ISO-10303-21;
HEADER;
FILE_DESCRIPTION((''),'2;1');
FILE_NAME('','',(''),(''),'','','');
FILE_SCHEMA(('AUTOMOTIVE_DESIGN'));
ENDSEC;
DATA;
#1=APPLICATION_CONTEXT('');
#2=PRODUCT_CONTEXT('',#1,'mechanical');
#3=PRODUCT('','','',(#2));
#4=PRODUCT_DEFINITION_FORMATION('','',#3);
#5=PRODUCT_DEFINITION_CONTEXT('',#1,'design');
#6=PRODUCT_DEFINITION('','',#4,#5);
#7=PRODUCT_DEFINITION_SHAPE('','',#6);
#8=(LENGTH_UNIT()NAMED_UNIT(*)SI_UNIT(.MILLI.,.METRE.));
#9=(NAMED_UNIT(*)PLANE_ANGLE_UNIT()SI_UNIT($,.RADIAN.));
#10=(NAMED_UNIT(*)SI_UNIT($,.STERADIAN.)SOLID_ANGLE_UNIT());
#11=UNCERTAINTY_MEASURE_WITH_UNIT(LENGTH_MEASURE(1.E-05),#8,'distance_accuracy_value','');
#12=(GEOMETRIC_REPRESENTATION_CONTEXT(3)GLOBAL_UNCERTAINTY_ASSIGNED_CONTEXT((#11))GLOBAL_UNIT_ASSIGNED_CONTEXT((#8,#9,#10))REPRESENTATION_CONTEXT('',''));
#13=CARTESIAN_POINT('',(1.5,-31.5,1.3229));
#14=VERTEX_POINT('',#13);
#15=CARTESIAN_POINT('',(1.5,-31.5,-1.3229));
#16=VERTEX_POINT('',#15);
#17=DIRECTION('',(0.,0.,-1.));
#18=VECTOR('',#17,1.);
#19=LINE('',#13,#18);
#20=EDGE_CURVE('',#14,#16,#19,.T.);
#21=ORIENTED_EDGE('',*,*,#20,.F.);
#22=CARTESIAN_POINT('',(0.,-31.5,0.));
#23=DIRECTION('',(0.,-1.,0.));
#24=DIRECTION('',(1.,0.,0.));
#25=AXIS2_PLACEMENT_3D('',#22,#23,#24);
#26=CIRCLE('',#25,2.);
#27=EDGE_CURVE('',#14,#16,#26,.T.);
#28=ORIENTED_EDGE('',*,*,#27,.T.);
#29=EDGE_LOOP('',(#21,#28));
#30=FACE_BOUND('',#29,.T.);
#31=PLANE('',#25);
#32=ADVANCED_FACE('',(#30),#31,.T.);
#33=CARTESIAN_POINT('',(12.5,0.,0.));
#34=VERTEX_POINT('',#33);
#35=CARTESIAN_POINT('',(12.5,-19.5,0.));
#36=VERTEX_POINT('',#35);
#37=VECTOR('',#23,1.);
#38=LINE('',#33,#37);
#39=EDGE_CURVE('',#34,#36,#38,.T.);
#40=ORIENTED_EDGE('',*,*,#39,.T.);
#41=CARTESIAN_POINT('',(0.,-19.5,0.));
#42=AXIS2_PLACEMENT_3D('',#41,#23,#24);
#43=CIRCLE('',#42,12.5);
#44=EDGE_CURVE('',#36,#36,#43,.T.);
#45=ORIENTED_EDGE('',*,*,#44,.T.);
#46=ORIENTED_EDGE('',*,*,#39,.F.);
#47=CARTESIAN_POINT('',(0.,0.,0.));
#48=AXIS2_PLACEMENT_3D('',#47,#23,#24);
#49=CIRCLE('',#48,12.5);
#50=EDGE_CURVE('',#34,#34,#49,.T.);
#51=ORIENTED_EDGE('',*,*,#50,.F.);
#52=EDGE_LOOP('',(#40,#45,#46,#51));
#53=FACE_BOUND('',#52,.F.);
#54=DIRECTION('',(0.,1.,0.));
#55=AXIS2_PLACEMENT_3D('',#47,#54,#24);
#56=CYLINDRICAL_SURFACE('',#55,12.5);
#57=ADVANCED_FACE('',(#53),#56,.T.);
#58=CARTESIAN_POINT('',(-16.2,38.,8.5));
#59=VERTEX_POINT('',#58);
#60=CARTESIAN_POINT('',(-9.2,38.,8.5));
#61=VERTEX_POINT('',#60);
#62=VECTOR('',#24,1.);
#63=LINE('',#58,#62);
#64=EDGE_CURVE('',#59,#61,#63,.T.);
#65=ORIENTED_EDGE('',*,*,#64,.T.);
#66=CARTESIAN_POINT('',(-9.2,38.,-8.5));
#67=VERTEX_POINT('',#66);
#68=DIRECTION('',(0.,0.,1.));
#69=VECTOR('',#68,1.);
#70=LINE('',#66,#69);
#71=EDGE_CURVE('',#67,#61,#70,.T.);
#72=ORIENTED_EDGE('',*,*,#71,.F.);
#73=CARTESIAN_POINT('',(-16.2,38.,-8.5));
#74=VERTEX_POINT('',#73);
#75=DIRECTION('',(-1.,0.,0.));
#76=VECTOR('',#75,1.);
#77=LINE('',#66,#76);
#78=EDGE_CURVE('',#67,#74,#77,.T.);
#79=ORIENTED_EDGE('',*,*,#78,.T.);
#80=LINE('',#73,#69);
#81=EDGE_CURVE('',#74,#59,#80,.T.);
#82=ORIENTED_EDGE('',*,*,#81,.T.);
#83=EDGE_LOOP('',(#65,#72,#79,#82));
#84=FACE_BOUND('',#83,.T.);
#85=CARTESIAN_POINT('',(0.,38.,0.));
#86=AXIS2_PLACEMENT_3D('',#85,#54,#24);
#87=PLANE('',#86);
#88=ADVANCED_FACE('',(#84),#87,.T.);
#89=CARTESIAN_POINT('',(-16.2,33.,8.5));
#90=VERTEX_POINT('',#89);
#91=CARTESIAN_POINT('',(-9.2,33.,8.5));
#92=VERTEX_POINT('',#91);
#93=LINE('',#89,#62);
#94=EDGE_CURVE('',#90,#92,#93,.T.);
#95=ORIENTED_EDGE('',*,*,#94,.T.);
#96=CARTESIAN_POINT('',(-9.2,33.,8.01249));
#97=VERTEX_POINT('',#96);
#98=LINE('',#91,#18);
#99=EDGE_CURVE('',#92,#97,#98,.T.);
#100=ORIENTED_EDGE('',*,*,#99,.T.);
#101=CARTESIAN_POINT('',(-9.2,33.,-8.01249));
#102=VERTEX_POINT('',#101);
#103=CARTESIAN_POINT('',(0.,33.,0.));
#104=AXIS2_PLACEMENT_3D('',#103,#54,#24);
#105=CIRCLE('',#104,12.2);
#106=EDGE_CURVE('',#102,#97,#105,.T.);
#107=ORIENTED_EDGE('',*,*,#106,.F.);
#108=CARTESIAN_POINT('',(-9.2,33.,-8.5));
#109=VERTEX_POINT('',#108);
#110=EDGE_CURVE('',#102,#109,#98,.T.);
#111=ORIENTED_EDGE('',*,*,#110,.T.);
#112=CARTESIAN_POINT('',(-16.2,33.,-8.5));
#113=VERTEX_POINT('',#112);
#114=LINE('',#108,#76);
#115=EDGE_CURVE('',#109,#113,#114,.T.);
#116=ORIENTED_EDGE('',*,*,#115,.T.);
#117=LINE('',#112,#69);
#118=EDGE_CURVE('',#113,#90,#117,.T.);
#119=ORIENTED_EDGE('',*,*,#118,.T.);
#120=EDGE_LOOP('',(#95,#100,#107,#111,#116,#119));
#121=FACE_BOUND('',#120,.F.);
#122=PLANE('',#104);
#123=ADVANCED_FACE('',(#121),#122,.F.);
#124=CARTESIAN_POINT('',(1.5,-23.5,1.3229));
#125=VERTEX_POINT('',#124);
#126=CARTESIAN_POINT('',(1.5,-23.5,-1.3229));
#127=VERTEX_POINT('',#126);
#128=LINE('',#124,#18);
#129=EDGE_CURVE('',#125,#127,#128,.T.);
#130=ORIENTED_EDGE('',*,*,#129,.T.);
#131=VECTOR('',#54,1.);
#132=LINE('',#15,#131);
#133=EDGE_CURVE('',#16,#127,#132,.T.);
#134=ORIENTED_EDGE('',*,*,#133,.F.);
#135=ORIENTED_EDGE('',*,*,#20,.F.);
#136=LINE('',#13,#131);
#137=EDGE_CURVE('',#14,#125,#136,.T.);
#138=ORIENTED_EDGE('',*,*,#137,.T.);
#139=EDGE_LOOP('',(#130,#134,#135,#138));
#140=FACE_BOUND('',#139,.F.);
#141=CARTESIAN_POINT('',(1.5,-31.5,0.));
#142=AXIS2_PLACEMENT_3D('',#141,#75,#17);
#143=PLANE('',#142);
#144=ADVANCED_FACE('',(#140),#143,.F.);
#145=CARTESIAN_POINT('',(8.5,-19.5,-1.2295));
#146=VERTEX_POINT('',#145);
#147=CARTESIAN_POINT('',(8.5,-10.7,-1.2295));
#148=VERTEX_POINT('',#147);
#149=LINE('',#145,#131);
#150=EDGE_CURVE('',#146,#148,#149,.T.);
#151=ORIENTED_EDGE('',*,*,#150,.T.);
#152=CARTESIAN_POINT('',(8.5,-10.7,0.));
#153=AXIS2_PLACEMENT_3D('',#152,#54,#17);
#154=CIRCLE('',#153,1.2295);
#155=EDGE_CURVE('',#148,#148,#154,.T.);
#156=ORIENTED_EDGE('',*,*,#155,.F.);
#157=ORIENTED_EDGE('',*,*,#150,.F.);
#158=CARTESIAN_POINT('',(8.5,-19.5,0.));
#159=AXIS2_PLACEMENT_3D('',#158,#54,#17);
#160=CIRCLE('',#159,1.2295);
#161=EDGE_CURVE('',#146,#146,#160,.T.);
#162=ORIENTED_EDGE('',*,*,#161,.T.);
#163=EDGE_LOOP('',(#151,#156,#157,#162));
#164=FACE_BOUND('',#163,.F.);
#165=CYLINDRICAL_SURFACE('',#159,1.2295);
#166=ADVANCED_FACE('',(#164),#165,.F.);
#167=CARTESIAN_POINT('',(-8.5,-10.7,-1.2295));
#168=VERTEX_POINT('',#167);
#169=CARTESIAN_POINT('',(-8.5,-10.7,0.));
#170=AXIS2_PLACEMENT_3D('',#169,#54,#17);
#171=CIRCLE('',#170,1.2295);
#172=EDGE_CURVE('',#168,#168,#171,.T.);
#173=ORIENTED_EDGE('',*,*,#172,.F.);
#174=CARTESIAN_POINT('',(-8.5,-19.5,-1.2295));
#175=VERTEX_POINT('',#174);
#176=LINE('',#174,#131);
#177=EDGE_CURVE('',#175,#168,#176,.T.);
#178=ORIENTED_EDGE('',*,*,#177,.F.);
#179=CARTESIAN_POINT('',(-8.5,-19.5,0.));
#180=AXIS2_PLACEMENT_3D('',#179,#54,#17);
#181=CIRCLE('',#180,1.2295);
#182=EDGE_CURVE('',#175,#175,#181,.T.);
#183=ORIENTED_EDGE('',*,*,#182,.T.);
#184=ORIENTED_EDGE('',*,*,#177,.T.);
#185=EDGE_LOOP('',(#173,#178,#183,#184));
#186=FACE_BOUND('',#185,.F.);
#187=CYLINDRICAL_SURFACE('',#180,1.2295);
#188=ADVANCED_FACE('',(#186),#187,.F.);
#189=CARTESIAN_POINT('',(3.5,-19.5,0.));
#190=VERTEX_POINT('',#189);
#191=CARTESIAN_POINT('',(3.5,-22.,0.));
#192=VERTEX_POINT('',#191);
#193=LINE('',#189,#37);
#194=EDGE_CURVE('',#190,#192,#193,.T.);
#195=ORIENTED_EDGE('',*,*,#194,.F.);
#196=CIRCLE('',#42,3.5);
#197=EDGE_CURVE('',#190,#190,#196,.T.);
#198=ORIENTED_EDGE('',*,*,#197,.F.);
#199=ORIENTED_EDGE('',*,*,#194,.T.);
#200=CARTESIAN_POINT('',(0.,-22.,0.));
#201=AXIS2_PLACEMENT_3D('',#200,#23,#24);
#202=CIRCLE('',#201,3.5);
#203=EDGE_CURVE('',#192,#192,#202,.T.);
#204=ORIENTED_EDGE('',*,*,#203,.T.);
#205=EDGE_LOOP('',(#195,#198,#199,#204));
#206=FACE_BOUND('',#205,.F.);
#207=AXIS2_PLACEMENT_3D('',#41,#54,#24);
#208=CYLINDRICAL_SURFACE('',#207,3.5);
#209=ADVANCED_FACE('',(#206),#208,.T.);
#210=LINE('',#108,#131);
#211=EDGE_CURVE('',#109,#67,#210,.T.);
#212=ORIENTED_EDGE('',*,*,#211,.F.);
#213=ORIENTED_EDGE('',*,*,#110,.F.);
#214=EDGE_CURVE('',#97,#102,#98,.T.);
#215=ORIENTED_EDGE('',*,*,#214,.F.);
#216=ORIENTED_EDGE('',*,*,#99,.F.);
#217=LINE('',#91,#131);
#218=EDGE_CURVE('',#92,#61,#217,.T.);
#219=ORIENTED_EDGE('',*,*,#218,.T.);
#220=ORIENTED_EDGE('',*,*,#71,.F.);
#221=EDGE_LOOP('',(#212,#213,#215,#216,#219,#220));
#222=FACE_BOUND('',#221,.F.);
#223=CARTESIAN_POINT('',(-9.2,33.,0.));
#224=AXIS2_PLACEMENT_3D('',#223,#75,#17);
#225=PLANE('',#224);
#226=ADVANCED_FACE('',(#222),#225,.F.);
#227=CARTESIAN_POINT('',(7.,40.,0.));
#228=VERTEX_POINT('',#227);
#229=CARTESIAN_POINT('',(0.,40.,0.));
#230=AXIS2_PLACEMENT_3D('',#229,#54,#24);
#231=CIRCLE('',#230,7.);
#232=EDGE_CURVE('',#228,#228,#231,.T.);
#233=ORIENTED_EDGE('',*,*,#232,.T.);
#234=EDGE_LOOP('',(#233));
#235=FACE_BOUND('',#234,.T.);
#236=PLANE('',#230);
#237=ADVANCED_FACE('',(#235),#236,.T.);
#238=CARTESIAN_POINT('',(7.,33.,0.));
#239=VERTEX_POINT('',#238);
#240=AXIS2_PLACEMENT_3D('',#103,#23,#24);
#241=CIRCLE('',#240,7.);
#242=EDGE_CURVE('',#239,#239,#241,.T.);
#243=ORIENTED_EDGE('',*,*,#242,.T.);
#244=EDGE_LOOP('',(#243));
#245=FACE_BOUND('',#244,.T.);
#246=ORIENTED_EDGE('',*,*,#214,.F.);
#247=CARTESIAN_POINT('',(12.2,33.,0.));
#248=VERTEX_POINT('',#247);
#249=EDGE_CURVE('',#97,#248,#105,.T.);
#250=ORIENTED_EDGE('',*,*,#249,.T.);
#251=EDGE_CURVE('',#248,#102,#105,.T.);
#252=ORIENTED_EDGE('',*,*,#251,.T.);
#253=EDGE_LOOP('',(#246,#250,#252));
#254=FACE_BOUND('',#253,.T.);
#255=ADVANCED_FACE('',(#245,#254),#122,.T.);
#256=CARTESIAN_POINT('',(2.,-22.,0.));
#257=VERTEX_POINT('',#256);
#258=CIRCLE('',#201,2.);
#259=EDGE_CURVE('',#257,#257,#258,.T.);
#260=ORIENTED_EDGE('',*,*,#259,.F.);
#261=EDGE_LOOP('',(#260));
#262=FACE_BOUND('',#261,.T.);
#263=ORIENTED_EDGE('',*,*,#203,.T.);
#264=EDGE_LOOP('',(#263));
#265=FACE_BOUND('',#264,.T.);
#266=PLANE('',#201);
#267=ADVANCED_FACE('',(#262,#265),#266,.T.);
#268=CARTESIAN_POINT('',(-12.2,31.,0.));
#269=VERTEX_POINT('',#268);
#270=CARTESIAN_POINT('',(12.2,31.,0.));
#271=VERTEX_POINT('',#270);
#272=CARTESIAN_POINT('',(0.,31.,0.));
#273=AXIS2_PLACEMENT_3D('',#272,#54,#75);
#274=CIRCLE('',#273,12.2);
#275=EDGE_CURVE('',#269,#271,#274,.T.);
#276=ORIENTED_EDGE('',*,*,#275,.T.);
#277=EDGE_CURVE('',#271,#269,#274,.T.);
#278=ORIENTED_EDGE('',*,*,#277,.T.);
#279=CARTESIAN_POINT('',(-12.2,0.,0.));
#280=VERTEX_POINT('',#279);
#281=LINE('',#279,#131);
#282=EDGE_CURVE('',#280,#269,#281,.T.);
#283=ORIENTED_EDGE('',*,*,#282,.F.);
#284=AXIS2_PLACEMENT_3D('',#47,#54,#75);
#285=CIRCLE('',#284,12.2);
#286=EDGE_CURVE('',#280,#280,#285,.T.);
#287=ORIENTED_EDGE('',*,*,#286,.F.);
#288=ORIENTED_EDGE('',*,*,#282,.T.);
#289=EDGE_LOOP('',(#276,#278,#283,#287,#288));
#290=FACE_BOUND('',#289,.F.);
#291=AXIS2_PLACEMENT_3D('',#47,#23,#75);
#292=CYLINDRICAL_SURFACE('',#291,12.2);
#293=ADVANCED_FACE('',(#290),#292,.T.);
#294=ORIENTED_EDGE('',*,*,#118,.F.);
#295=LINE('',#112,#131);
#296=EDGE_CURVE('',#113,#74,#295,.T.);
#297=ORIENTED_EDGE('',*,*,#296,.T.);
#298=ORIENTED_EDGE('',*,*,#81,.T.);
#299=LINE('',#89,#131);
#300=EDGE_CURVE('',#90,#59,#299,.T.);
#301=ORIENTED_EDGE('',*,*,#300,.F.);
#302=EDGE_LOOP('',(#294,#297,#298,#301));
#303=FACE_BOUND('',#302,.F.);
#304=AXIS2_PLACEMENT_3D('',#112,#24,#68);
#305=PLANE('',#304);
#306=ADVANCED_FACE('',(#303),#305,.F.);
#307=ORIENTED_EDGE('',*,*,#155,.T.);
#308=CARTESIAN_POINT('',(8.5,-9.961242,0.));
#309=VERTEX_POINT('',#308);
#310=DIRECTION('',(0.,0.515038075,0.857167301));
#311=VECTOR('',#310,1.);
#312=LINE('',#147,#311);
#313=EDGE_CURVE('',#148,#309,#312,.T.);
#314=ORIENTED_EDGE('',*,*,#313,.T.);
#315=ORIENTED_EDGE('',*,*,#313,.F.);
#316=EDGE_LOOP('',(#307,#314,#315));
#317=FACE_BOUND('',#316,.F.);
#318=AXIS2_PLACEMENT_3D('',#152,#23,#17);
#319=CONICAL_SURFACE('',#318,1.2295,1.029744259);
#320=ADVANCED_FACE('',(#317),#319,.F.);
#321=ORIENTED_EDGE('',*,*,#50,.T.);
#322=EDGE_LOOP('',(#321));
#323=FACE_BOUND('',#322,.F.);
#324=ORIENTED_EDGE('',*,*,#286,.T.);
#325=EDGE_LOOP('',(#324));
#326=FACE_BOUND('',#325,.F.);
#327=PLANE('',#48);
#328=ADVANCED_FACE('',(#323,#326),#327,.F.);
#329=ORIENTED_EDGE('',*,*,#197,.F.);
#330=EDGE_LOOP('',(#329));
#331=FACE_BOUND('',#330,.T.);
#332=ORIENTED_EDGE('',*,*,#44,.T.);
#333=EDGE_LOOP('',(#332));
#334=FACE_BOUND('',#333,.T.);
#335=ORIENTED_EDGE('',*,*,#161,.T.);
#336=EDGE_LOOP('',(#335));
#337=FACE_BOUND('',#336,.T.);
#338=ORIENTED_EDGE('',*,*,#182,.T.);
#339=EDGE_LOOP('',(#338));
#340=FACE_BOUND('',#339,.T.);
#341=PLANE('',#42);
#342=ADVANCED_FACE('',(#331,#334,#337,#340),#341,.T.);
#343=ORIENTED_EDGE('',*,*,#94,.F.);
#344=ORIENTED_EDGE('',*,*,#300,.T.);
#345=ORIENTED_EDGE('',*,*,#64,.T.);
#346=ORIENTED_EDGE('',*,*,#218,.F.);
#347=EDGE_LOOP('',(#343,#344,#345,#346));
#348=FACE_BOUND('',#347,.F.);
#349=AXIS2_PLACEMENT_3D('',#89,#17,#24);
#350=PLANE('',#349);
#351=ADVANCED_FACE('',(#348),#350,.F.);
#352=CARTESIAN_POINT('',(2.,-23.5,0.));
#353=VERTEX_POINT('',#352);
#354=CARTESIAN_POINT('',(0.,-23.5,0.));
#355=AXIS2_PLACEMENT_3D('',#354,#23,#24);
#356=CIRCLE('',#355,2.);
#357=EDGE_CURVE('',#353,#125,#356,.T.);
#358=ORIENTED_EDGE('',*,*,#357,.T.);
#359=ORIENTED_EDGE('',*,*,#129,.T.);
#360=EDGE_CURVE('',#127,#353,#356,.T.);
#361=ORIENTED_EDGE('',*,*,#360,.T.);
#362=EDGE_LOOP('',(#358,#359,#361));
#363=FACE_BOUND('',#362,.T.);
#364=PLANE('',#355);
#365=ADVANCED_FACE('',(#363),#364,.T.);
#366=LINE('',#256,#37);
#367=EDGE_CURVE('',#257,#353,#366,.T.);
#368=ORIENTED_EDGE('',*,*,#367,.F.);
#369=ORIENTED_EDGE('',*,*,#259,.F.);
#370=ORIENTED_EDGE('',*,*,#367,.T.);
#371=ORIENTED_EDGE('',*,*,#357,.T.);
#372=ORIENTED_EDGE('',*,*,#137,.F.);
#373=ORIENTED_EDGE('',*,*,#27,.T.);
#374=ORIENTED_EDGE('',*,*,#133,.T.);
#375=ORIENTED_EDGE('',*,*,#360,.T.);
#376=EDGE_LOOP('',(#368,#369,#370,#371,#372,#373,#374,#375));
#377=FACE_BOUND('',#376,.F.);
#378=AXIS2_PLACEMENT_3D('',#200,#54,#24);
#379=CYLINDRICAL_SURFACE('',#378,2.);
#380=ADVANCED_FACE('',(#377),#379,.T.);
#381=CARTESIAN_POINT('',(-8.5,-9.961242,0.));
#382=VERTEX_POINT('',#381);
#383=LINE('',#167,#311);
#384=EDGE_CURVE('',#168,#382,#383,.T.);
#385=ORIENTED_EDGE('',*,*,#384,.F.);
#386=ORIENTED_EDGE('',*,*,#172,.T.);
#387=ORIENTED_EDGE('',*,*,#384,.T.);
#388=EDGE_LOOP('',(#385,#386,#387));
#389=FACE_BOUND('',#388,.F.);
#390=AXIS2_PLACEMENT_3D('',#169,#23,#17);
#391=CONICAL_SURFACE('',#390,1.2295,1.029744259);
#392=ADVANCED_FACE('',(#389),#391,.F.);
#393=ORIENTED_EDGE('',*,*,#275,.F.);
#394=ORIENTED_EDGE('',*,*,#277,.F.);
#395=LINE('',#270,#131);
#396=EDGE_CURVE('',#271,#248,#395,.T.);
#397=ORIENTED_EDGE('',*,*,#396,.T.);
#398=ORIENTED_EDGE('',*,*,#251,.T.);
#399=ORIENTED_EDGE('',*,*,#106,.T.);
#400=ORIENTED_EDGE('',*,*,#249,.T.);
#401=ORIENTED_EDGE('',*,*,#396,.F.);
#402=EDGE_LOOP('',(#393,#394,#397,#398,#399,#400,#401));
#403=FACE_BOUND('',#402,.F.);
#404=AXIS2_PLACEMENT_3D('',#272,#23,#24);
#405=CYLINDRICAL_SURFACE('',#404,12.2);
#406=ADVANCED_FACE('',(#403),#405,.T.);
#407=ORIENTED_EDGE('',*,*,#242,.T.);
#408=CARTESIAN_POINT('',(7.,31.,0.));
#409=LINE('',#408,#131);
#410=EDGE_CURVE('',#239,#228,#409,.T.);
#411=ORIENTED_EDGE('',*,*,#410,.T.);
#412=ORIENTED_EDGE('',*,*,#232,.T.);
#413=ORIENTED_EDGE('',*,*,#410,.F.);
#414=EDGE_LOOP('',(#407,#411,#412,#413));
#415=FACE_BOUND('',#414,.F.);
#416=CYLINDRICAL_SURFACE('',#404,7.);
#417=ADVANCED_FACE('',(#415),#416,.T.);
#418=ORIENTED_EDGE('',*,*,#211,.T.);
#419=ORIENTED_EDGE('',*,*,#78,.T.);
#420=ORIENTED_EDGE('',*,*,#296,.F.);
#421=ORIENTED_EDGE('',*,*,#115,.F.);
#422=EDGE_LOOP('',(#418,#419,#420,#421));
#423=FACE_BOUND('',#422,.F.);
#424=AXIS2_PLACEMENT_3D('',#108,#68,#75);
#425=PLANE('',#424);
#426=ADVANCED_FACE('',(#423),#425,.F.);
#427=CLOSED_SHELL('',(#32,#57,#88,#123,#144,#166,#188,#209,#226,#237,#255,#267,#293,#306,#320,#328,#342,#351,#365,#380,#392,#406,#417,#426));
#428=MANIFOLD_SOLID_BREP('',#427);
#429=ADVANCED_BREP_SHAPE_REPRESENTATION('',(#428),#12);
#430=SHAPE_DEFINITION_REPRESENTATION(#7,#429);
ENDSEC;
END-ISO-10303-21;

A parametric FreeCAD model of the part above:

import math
import FreeCAD as App
import Part
import Sketcher

V = App.Vector

doc = App.newDocument("Part")
body = doc.addObject("PartDesign::Body", "Body")

# Sketch on XZ plane
sketch1 = body.newObject("Sketcher::SketchObject", "Sketch")
sketch1.AttachmentSupport = (doc.getObject("XZ_Plane"), [""])
sketch1.MapMode = "FlatFace"
sketch1.addGeometry(Part.Circle(V(0, 0, 0), V(0, 0, 1), 12), False)
sketch1.addConstraint([
    Sketcher.Constraint("Coincident", 0, 3, -1, 1),
    Sketcher.Constraint("Diameter", 0, 24.4),
])
pad1 = body.newObject("PartDesign::Pad", "Pad")
pad1.Profile = sketch1
pad1.Length = 31
pad1.Reversed = True

# Sketch on XZ plane
sketch2 = body.newObject("Sketcher::SketchObject", "Sketch001")
sketch2.AttachmentSupport = (doc.getObject("XZ_Plane"), [""])
sketch2.MapMode = "FlatFace"
sketch2.addGeometry(Part.Circle(V(0, 0, 0), V(0, 0, 1), 12), False)
sketch2.addConstraint([
    Sketcher.Constraint("Coincident", 0, 3, -1, 1),
    Sketcher.Constraint("Diameter", 0, 25.0),
])
pad2 = body.newObject("PartDesign::Pad", "Pad001")
pad2.Profile = sketch2
pad2.Length = 19.5

# Sketch on XZ plane
sketch3 = body.newObject("Sketcher::SketchObject", "Sketch002")
sketch3.AttachmentSupport = (doc.getObject("XZ_Plane"), [""])
sketch3.MapMode = "FlatFace"
sketch3.AttachmentOffset = App.Placement(V(0, 0, 19.5), App.Rotation())
sketch3.addGeometry(Part.Circle(V(0, 0, 0), V(0, 0, 1), 3.5), False)
sketch3.addConstraint([
    Sketcher.Constraint("Coincident", 0, 3, -1, 1),
    Sketcher.Constraint("Diameter", 0, 7.0),
])
pad3 = body.newObject("PartDesign::Pad", "Pad002")
pad3.Profile = sketch3
pad3.Length = 2.5

# Sketch on XZ plane
sketch4 = body.newObject("Sketcher::SketchObject", "Sketch003")
sketch4.AttachmentSupport = (doc.getObject("XZ_Plane"), [""])
sketch4.MapMode = "FlatFace"
sketch4.AttachmentOffset = App.Placement(V(0, 0, 22), App.Rotation())
sketch4.addGeometry(Part.Circle(V(0, 0, 0), V(0, 0, 1), 2), False)
sketch4.addConstraint([
    Sketcher.Constraint("Coincident", 0, 3, -1, 1),
    Sketcher.Constraint("Diameter", 0, 4.0),
])
pad4 = body.newObject("PartDesign::Pad", "Pad003")
pad4.Profile = sketch4
pad4.Length = 9.5

# Sketch on XZ plane
sketch5 = body.newObject("Sketcher::SketchObject", "Sketch004")
sketch5.AttachmentSupport = (doc.getObject("XZ_Plane"), [""])
sketch5.MapMode = "FlatFace"
sketch5.AttachmentOffset = App.Placement(V(0, 0, 31.5), App.Rotation())
sketch5.addGeometry([
    Part.ArcOfCircle(Part.Circle(V(0, 0, 0), V(0, 0, 1), 2), math.radians(-41), math.radians(41)),
    Part.LineSegment(V(1.5, -1.3, 0), V(1.5, 1.3, 0)),
], False)
sketch5.addConstraint([
    Sketcher.Constraint("Coincident", 0, 1, 1, 1),
    Sketcher.Constraint("Coincident", 1, 2, 0, 2),
    Sketcher.Constraint("Vertical", 1),
    Sketcher.Constraint("Coincident", 0, 3, -1, 1),
    Sketcher.Constraint("Radius", 0, 2.0),
    Sketcher.Constraint("DistanceX", -1, 1, 0, 1, 1.5),
])
pocket1 = body.newObject("PartDesign::Pocket", "Pocket")
pocket1.Profile = sketch5
pocket1.Length = 8

# Sketch on XZ plane
sketch6 = body.newObject("Sketcher::SketchObject", "Sketch005")
sketch6.AttachmentSupport = (doc.getObject("XZ_Plane"), [""])
sketch6.MapMode = "FlatFace"
sketch6.AttachmentOffset = App.Placement(V(0, 0, 19.5), App.Rotation())
sketch6.addGeometry([
    Part.Circle(V(8.5, 0, 0), V(0, 0, 1), 1.2),
    Part.Circle(V(-8.5, 0, 0), V(0, 0, 1), 1.2),
], False)
sketch6.addConstraint([
    Sketcher.Constraint("Equal", 0, 1),
    Sketcher.Constraint("Symmetric", 0, 3, 1, 3, -1, 1),
    Sketcher.Constraint("PointOnObject", 0, 3, -1),
    Sketcher.Constraint("Diameter", 0, 2.459),
    Sketcher.Constraint("DistanceX", 1, 3, 0, 3, 17.0),
])
doc.recompute()
hole = body.newObject("PartDesign::Hole", "Hole")
hole.Profile = sketch6
hole.ThreadType = "None"
hole.Diameter = 2.459
hole.DepthType = "Dimension"
hole.Depth = 8.8
hole.DrillPoint = "Angled"
hole.DrillPointAngle = 118

# Sketch on XZ plane
sketch7 = body.newObject("Sketcher::SketchObject", "Sketch006")
sketch7.AttachmentSupport = (doc.getObject("XZ_Plane"), [""])
sketch7.MapMode = "FlatFace"
sketch7.AttachmentOffset = App.Placement(V(0, 0, -31), App.Rotation())
sketch7.addGeometry(Part.Circle(V(0, 0, 0), V(0, 0, 1), 7), False)
sketch7.addConstraint([
    Sketcher.Constraint("Coincident", 0, 3, -1, 1),
    Sketcher.Constraint("Diameter", 0, 14.0),
])
pad5 = body.newObject("PartDesign::Pad", "Pad004")
pad5.Profile = sketch7
pad5.Length = 9
pad5.Reversed = True

# Sketch on XZ plane
sketch8 = body.newObject("Sketcher::SketchObject", "Sketch007")
sketch8.AttachmentSupport = (doc.getObject("XZ_Plane"), [""])
sketch8.MapMode = "FlatFace"
sketch8.AttachmentOffset = App.Placement(V(0, 0, -31), App.Rotation())
sketch8.addGeometry(Part.Circle(V(0, 0, 0), V(0, 0, 1), 12), False)
sketch8.addConstraint([
    Sketcher.Constraint("Coincident", 0, 3, -1, 1),
    Sketcher.Constraint("Diameter", 0, 24.4),
])
pad6 = body.newObject("PartDesign::Pad", "Pad005")
pad6.Profile = sketch8
pad6.Length = 2
pad6.Reversed = True

# Sketch on XZ plane
sketch9 = body.newObject("Sketcher::SketchObject", "Sketch008")
sketch9.AttachmentSupport = (doc.getObject("XZ_Plane"), [""])
sketch9.MapMode = "FlatFace"
sketch9.AttachmentOffset = App.Placement(V(0, 0, -33), App.Rotation())
sketch9.addGeometry([
    Part.LineSegment(V(-9, -8, 0), V(-16, -8, 0)),
    Part.LineSegment(V(-16, -8, 0), V(-16, 8, 0)),
    Part.LineSegment(V(-16, 8, 0), V(-9, 8, 0)),
    Part.LineSegment(V(-9, 8, 0), V(-9, -8, 0)),
], False)
sketch9.addConstraint([
    Sketcher.Constraint("Coincident", 0, 2, 1, 1),
    Sketcher.Constraint("Coincident", 1, 2, 2, 1),
    Sketcher.Constraint("Coincident", 2, 2, 3, 1),
    Sketcher.Constraint("Coincident", 3, 2, 0, 1),
    Sketcher.Constraint("Horizontal", 0),
    Sketcher.Constraint("Vertical", 1),
    Sketcher.Constraint("Horizontal", 2),
    Sketcher.Constraint("Vertical", 3),
    Sketcher.Constraint("DistanceX", 0, 2, 0, 1, 7.0),
    Sketcher.Constraint("DistanceY", 1, 1, 1, 2, 17.0),
    Sketcher.Constraint("DistanceX", 0, 2, -1, 1, 16.2),
    Sketcher.Constraint("DistanceY", 0, 2, -1, 1, 8.5),
])
pad7 = body.newObject("PartDesign::Pad", "Pad006")
pad7.Profile = sketch9
pad7.Length = 5
pad7.Reversed = True

doc.recompute()
